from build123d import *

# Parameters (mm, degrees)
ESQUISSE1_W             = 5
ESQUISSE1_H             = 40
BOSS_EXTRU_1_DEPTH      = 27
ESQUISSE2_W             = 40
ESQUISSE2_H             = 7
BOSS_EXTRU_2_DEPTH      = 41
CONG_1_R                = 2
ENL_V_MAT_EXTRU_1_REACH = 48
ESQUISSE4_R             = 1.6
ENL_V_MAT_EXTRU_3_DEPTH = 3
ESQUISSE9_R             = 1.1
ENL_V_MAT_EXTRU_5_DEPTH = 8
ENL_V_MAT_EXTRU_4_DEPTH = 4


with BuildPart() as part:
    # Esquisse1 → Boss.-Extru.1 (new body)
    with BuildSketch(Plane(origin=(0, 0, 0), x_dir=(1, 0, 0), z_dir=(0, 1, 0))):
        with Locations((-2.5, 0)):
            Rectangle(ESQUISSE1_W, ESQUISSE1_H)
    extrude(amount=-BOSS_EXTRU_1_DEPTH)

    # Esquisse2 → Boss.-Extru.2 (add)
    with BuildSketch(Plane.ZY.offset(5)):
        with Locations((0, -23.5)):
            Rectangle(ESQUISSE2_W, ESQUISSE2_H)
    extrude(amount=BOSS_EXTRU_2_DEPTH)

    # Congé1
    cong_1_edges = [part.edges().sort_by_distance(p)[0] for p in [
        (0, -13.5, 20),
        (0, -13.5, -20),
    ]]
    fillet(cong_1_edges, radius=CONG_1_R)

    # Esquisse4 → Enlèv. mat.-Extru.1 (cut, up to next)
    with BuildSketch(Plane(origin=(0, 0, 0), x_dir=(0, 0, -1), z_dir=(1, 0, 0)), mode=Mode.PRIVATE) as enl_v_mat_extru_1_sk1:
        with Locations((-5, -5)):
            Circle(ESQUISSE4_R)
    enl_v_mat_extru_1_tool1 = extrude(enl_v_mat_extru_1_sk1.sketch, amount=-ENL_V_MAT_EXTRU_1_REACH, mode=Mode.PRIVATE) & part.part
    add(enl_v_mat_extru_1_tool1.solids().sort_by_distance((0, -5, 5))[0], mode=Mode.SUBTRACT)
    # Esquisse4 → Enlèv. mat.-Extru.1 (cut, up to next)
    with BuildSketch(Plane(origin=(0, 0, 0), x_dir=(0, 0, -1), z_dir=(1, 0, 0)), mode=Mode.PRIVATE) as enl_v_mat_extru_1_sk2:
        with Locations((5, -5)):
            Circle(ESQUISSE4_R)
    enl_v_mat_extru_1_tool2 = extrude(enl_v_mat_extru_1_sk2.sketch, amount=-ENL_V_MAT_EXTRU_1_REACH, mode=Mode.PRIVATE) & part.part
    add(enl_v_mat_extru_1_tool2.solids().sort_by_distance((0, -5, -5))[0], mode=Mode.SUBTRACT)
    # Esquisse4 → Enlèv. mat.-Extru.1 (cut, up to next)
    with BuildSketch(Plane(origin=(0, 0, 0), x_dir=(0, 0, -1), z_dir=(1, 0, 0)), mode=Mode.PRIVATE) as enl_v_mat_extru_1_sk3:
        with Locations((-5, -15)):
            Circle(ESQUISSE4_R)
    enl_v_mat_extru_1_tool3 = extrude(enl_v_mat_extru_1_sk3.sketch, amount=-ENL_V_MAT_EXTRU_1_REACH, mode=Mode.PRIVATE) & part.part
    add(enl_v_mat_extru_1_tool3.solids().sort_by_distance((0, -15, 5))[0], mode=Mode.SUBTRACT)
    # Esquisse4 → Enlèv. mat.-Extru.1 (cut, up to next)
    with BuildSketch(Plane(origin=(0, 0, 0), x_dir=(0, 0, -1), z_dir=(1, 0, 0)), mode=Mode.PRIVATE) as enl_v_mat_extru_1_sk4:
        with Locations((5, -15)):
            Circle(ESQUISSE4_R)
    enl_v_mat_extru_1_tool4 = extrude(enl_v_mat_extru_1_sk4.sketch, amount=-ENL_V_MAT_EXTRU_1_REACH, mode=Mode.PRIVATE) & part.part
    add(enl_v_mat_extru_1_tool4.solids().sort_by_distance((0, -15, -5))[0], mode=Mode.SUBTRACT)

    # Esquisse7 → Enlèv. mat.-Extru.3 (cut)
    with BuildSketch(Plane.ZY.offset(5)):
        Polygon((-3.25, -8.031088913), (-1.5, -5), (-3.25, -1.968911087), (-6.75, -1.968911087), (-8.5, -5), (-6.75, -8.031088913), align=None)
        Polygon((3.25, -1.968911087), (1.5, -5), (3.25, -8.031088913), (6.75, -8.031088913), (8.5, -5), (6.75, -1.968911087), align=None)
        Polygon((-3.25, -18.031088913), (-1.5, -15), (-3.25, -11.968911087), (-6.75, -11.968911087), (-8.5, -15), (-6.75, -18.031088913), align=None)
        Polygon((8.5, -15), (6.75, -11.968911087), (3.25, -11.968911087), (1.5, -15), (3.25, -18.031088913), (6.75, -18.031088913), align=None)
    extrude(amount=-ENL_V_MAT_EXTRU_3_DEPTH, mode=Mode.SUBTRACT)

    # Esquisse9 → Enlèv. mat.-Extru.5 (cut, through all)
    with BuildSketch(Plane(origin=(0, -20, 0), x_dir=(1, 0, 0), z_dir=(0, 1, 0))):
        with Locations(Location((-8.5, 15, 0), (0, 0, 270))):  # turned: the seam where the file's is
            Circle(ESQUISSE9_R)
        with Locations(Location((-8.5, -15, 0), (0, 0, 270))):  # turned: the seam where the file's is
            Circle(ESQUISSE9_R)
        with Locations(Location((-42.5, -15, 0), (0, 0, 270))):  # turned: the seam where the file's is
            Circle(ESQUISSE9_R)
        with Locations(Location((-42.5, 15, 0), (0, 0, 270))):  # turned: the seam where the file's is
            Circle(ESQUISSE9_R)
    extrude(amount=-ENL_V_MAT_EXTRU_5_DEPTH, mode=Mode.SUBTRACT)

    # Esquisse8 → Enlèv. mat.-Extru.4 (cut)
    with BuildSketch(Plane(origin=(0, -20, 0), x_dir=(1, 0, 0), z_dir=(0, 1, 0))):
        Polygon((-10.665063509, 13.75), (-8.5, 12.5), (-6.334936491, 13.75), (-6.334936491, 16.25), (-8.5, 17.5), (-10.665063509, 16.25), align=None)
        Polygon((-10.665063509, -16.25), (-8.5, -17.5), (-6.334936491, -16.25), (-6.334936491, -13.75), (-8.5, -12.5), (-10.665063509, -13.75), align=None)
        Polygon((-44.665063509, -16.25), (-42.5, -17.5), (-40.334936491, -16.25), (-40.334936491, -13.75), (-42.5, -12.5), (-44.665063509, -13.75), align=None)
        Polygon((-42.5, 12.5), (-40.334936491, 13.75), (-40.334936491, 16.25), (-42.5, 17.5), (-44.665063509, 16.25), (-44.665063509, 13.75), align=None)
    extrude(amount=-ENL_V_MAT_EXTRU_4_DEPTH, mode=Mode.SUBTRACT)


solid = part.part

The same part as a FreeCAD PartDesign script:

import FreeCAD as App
import Part
import Sketcher

V = App.Vector
Q = App.Units.Quantity


def edges_at(feature, points):
    """Names of the edges that pass closest to the given points."""
    edges = feature.Shape.Edges
    near = lambda p: min(range(len(edges)), key=lambda i: edges[i].distToShape(Part.Vertex(*p))[0])
    return sorted({f"Edge{near(p) + 1}" for p in points})

doc = App.newDocument("Part")
body = doc.addObject("PartDesign::Body", "Body")

# Sketch on XZ plane
sketch1 = body.newObject("Sketcher::SketchObject", "Sketch")
sketch1.AttachmentSupport = (doc.getObject("XZ_Plane"), [""])
sketch1.MapMode = "FlatFace"
sketch1.addGeometry(Part.LineSegment(V(-5, -20, 0), V(-5, 20, 0)), False)
sketch1.addGeometry(Part.LineSegment(V(-5, 20, 0), V(0, 20, 0)), False)
sketch1.addGeometry(Part.LineSegment(V(0, 20, 0), V(0, -20, 0)), False)
sketch1.addGeometry(Part.LineSegment(V(0, -20, 0), V(-5, -20, 0)), False)
sketch1.addConstraint(Sketcher.Constraint("Coincident", 0, 2, 1, 1))
sketch1.addConstraint(Sketcher.Constraint("Coincident", 1, 2, 2, 1))
sketch1.addConstraint(Sketcher.Constraint("Coincident", 2, 2, 3, 1))
sketch1.addConstraint(Sketcher.Constraint("Coincident", 3, 2, 0, 1))
sketch1.addConstraint(Sketcher.Constraint("Vertical", 0))
sketch1.addConstraint(Sketcher.Constraint("Horizontal", 1))
sketch1.addConstraint(Sketcher.Constraint("Vertical", 2))
sketch1.addConstraint(Sketcher.Constraint("Horizontal", 3))
sketch1.addConstraint(Sketcher.Constraint("Symmetric", 1, 2, 2, 2, -1, 1))
sketch1.addConstraint(Sketcher.Constraint("DistanceX", 1, 1, 1, 2, Q("5 mm")))
sketch1.addConstraint(Sketcher.Constraint("DistanceY", 0, 1, 0, 2, Q("40 mm")))
pad1 = body.newObject("PartDesign::Pad", "Pad")
pad1.Profile = sketch1
pad1.Length = 27

# Sketch on YZ plane
sketch2 = body.newObject("Sketcher::SketchObject", "Sketch001")
sketch2.AttachmentSupport = (doc.getObject("YZ_Plane"), [""])
sketch2.MapMode = "FlatFace"
sketch2.AttachmentOffset = App.Placement(V(0, 0, -5), App.Rotation())
sketch2.addGeometry(Part.LineSegment(V(-20, -20, 0), V(-27, -20, 0)), False)
sketch2.addGeometry(Part.LineSegment(V(-27, -20, 0), V(-27, 20, 0)), False)
sketch2.addGeometry(Part.LineSegment(V(-27, 20, 0), V(-20, 20, 0)), False)
sketch2.addGeometry(Part.LineSegment(V(-20, 20, 0), V(-20, -20, 0)), False)
sketch2.addConstraint(Sketcher.Constraint("Coincident", 0, 2, 1, 1))
sketch2.addConstraint(Sketcher.Constraint("Coincident", 1, 2, 2, 1))
sketch2.addConstraint(Sketcher.Constraint("Coincident", 2, 2, 3, 1))
sketch2.addConstraint(Sketcher.Constraint("Coincident", 3, 2, 0, 1))
sketch2.addConstraint(Sketcher.Constraint("Horizontal", 0))
sketch2.addConstraint(Sketcher.Constraint("Vertical", 1))
sketch2.addConstraint(Sketcher.Constraint("Horizontal", 2))
sketch2.addConstraint(Sketcher.Constraint("Vertical", 3))
sketch2.addConstraint(Sketcher.Constraint("DistanceX", 0, 2, 0, 1, Q("7 mm")))
sketch2.addConstraint(Sketcher.Constraint("DistanceY", 1, 1, 1, 2, Q("40 mm")))
sketch2.addConstraint(Sketcher.Constraint("DistanceX", 0, 2, -1, 1, Q("27 mm")))
sketch2.addConstraint(Sketcher.Constraint("DistanceY", 0, 2, -1, 1, Q("20 mm")))
pad2 = body.newObject("PartDesign::Pad", "Pad001")
pad2.Profile = sketch2
pad2.Length = 41
pad2.Reversed = True
doc.recompute()

fillet = body.newObject("PartDesign::Fillet", "Fillet")
fillet.Base = (pad2, edges_at(pad2, [(0, -13.5, 20), (0, -13.5, -20)]))
fillet.Radius = 2

# Sketch on YZ plane
sketch3 = body.newObject("Sketcher::SketchObject", "Sketch002")
sketch3.AttachmentSupport = (doc.getObject("YZ_Plane"), [""])
sketch3.MapMode = "FlatFace"
sketch3.addGeometry(Part.Circle(V(-5, 5, 0), V(0, 0, 1), 1.6), False)
sketch3.addConstraint(Sketcher.Constraint("Diameter", 0, Q("3.2 mm")))
sketch3.addConstraint(Sketcher.Constraint("DistanceX", 0, 3, -1, 1, Q("5 mm")))
sketch3.addConstraint(Sketcher.Constraint("DistanceY", -1, 1, 0, 3, Q("5 mm")))
pocket1 = body.newObject("PartDesign::Pocket", "Pocket")
pocket1.Profile = sketch3
pocket1.Type = "UpToFirst"

# Sketch on YZ plane
sketch4 = body.newObject("Sketcher::SketchObject", "Sketch003")
sketch4.AttachmentSupport = (doc.getObject("YZ_Plane"), [""])
sketch4.MapMode = "FlatFace"
sketch4.addGeometry(Part.Circle(V(-5, -5, 0), V(0, 0, 1), 1.6), False)
sketch4.addConstraint(Sketcher.Constraint("Diameter", 0, Q("3.2 mm")))
sketch4.addConstraint(Sketcher.Constraint("DistanceX", 0, 3, -1, 1, Q("5 mm")))
sketch4.addConstraint(Sketcher.Constraint("DistanceY", 0, 3, -1, 1, Q("5 mm")))
pocket2 = body.newObject("PartDesign::Pocket", "Pocket001")
pocket2.Profile = sketch4
pocket2.Type = "UpToFirst"

# Sketch on YZ plane
sketch5 = body.newObject("Sketcher::SketchObject", "Sketch004")
sketch5.AttachmentSupport = (doc.getObject("YZ_Plane"), [""])
sketch5.MapMode = "FlatFace"
sketch5.addGeometry(Part.Circle(V(-15, 5, 0), V(0, 0, 1), 1.6), False)
sketch5.addConstraint(Sketcher.Constraint("Diameter", 0, Q("3.2 mm")))
sketch5.addConstraint(Sketcher.Constraint("DistanceX", 0, 3, -1, 1, Q("15 mm")))
sketch5.addConstraint(Sketcher.Constraint("DistanceY", -1, 1, 0, 3, Q("5 mm")))
pocket3 = body.newObject("PartDesign::Pocket", "Pocket002")
pocket3.Profile = sketch5
pocket3.Type = "UpToFirst"

# Sketch on YZ plane
sketch6 = body.newObject("Sketcher::SketchObject", "Sketch005")
sketch6.AttachmentSupport = (doc.getObject("YZ_Plane"), [""])
sketch6.MapMode = "FlatFace"
sketch6.addGeometry(Part.Circle(V(-15, -5, 0), V(0, 0, 1), 1.6), False)
sketch6.addConstraint(Sketcher.Constraint("Diameter", 0, Q("3.2 mm")))
sketch6.addConstraint(Sketcher.Constraint("DistanceX", 0, 3, -1, 1, Q("15 mm")))
sketch6.addConstraint(Sketcher.Constraint("DistanceY", 0, 3, -1, 1, Q("5 mm")))
pocket4 = body.newObject("PartDesign::Pocket", "Pocket003")
pocket4.Profile = sketch6
pocket4.Type = "UpToFirst"

# Sketch on YZ plane
sketch7 = body.newObject("Sketcher::SketchObject", "Sketch006")
sketch7.AttachmentSupport = (doc.getObject("YZ_Plane"), [""])
sketch7.MapMode = "FlatFace"
sketch7.AttachmentOffset = App.Placement(V(0, 0, -5), App.Rotation())
sketch7.addGeometry(Part.LineSegment(V(-8, -3.2, 0), V(-5, -1.5, 0)), False)
sketch7.addGeometry(Part.LineSegment(V(-5, -1.5, 0), V(-2, -3.2, 0)), False)
sketch7.addGeometry(Part.LineSegment(V(-2, -3.2, 0), V(-2, -6.8, 0)), False)
sketch7.addGeometry(Part.LineSegment(V(-2, -6.8, 0), V(-5, -8.5, 0)), False)
sketch7.addGeometry(Part.LineSegment(V(-5, -8.5, 0), V(-8, -6.8, 0)), False)
sketch7.addGeometry(Part.LineSegment(V(-8, -6.8, 0), V(-8, -3.2, 0)), False)
sketch7.addGeometry(Part.LineSegment(V(-2, 3.2, 0), V(-5, 1.5, 0)), False)
sketch7.addGeometry(Part.LineSegment(V(-5, 1.5, 0), V(-8, 3.2, 0)), False)
sketch7.addGeometry(Part.LineSegment(V(-8, 3.2, 0), V(-8, 6.8, 0)), False)
sketch7.addGeometry(Part.LineSegment(V(-8, 6.8, 0), V(-5, 8.5, 0)), False)
sketch7.addGeometry(Part.LineSegment(V(-5, 8.5, 0), V(-2, 6.8, 0)), False)
sketch7.addGeometry(Part.LineSegment(V(-2, 6.8, 0), V(-2, 3.2, 0)), False)
sketch7.addGeometry(Part.LineSegment(V(-18, -3.2, 0), V(-15, -1.5, 0)), False)
sketch7.addGeometry(Part.LineSegment(V(-15, -1.5, 0), V(-12, -3.2, 0)), False)
sketch7.addGeometry(Part.LineSegment(V(-12, -3.2, 0), V(-12, -6.8, 0)), False)
sketch7.addGeometry(Part.LineSegment(V(-12, -6.8, 0), V(-15, -8.5, 0)), False)
sketch7.addGeometry(Part.LineSegment(V(-15, -8.5, 0), V(-18, -6.8, 0)), False)
sketch7.addGeometry(Part.LineSegment(V(-18, -6.8, 0), V(-18, -3.2, 0)), False)
sketch7.addGeometry(Part.LineSegment(V(-15, 8.5, 0), V(-12, 6.8, 0)), False)
sketch7.addGeometry(Part.LineSegment(V(-12, 6.8, 0), V(-12, 3.2, 0)), False)
sketch7.addGeometry(Part.LineSegment(V(-12, 3.2, 0), V(-15, 1.5, 0)), False)
sketch7.addGeometry(Part.LineSegment(V(-15, 1.5, 0), V(-18, 3.2, 0)), False)
sketch7.addGeometry(Part.LineSegment(V(-18, 3.2, 0), V(-18, 6.8, 0)), False)
sketch7.addGeometry(Part.LineSegment(V(-18, 6.8, 0), V(-15, 8.5, 0)), False)
sketch7.addConstraint(Sketcher.Constraint("Coincident", 0, 2, 1, 1))
sketch7.addConstraint(Sketcher.Constraint("Coincident", 1, 2, 2, 1))
sketch7.addConstraint(Sketcher.Constraint("Coincident", 2, 2, 3, 1))
sketch7.addConstraint(Sketcher.Constraint("Coincident", 3, 2, 4, 1))
sketch7.addConstraint(Sketcher.Constraint("Coincident", 4, 2, 5, 1))
sketch7.addConstraint(Sketcher.Constraint("Coincident", 5, 2, 0, 1))
sketch7.addConstraint(Sketcher.Constraint("Coincident", 6, 2, 7, 1))
sketch7.addConstraint(Sketcher.Constraint("Coincident", 7, 2, 8, 1))
sketch7.addConstraint(Sketcher.Constraint("Coincident", 8, 2, 9, 1))
sketch7.addConstraint(Sketcher.Constraint("Coincident", 9, 2, 10, 1))
sketch7.addConstraint(Sketcher.Constraint("Coincident", 10, 2, 11, 1))
sketch7.addConstraint(Sketcher.Constraint("Coincident", 11, 2, 6, 1))
sketch7.addConstraint(Sketcher.Constraint("Coincident", 12, 2, 13, 1))
sketch7.addConstraint(Sketcher.Constraint("Coincident", 13, 2, 14, 1))
sketch7.addConstraint(Sketcher.Constraint("Coincident", 14, 2, 15, 1))
sketch7.addConstraint(Sketcher.Constraint("Coincident", 15, 2, 16, 1))
sketch7.addConstraint(Sketcher.Constraint("Coincident", 16, 2, 17, 1))
sketch7.addConstraint(Sketcher.Constraint("Coincident", 17, 2, 12, 1))
sketch7.addConstraint(Sketcher.Constraint("Coincident", 18, 2, 19, 1))
sketch7.addConstraint(Sketcher.Constraint("Coincident", 19, 2, 20, 1))
sketch7.addConstraint(Sketcher.Constraint("Coincident", 20, 2, 21, 1))
sketch7.addConstraint(Sketcher.Constraint("Coincident", 21, 2, 22, 1))
sketch7.addConstraint(Sketcher.Constraint("Coincident", 22, 2, 23, 1))
sketch7.addConstraint(Sketcher.Constraint("Coincident", 23, 2, 18, 1))
sketch7.addConstraint(Sketcher.Constraint("Vertical", 2))
sketch7.addConstraint(Sketcher.Constraint("Vertical", 5))
sketch7.addConstraint(Sketcher.Constraint("Vertical", 8))
sketch7.addConstraint(Sketcher.Constraint("Vertical", 11))
sketch7.addConstraint(Sketcher.Constraint("Vertical", 14))
sketch7.addConstraint(Sketcher.Constraint("Vertical", 17))
sketch7.addConstraint(Sketcher.Constraint("Vertical", 19))
sketch7.addConstraint(Sketcher.Constraint("Vertical", 22))
sketch7.addConstraint(Sketcher.Constraint("Symmetric", 0, 2, 6, 2, -1))
sketch7.addConstraint(Sketcher.Constraint("Symmetric", 5, 2, 7, 2, -1))
sketch7.addConstraint(Sketcher.Constraint("Symmetric", 3, 2, 9, 2, -1))
sketch7.addConstraint(Sketcher.Constraint("Symmetric", 2, 2, 10, 2, -1))
sketch7.addConstraint(Sketcher.Constraint("Symmetric", 14, 2, 18, 2, -1))
sketch7.addConstraint(Sketcher.Constraint("Symmetric", 12, 2, 20, 2, -1))
sketch7.addConstraint(Sketcher.Constraint("Symmetric", 17, 2, 21, 2, -1))
sketch7.addConstraint(Sketcher.Constraint("Symmetric", 15, 2, 23, 2, -1))
sketch7.addConstraint(Sketcher.Constraint("Parallel", 0, 3))
sketch7.addConstraint(Sketcher.Constraint("Parallel", 1, 4))
sketch7.addConstraint(Sketcher.Constraint("Parallel", 3, 6))
sketch7.addConstraint(Sketcher.Constraint("Parallel", 4, 7))
sketch7.addConstraint(Sketcher.Constraint("Parallel", 6, 9))
sketch7.addConstraint(Sketcher.Constraint("Parallel", 9, 12))
sketch7.addConstraint(Sketcher.Constraint("Parallel", 10, 13))
sketch7.addConstraint(Sketcher.Constraint("Parallel", 12, 15))
sketch7.addConstraint(Sketcher.Constraint("Parallel", 13, 16))
sketch7.addConstraint(Sketcher.Constraint("Parallel", 15, 20))
sketch7.addConstraint(Sketcher.Constraint("Parallel", 20, 23))
sketch7.addConstraint(Sketcher.Constraint("Horizontal", 2, 2, 4, 2))
sketch7.addConstraint(Sketcher.Constraint("Horizontal", 1, 2, 5, 2))
sketch7.addConstraint(Sketcher.Constraint("Horizontal", 0, 2, 12, 2))
sketch7.addConstraint(Sketcher.Constraint("Horizontal", 5, 2, 13, 2))
sketch7.addConstraint(Sketcher.Constraint("Horizontal", 4, 2, 14, 2))
sketch7.addConstraint(Sketcher.Constraint("Horizontal", 3, 2, 15, 2))
sketch7.addConstraint(Sketcher.Constraint("Horizontal", 14, 2, 16, 2))
sketch7.addConstraint(Sketcher.Constraint("Angle", 0, Q("30 deg")))
sketch7.addConstraint(Sketcher.Constraint("DistanceY", 2, 2, 2, 1, Q("3.5 mm")))
sketch7.addConstraint(Sketcher.Constraint("DistanceX", 0, 2, -1, 1, Q("5 mm")))
sketch7.addConstraint(Sketcher.Constraint("DistanceX", 12, 2, -1, 1, Q("15 mm")))
sketch7.addConstraint(Sketcher.Constraint("DistanceY", 3, 2, 0, 2, Q("7 mm")))
sketch7.addConstraint(Sketcher.Constraint("DistanceY", 0, 2, 6, 2, Q("3 mm")))
pocket5 = body.newObject("PartDesign::Pocket", "Pocket004")
pocket5.Profile = sketch7
pocket5.Length = 3
pocket5.Reversed = True

# Sketch on XZ plane
sketch8 = body.newObject("Sketcher::SketchObject", "Sketch007")
sketch8.AttachmentSupport = (doc.getObject("XZ_Plane"), [""])
sketch8.MapMode = "FlatFace"
sketch8.AttachmentOffset = App.Placement(V(0, 0, 20), App.Rotation())
sketch8.addGeometry(Part.Circle(V(-8.5, -15, 0), V(0, 0, 1), 1.1), False)
sketch8.addGeometry(Part.Circle(V(-8.5, 15, 0), V(0, 0, 1), 1.1), False)
sketch8.addGeometry(Part.Circle(V(-42.5, 15, 0), V(0, 0, 1), 1.1), False)
sketch8.addGeometry(Part.Circle(V(-42.5, -15, 0), V(0, 0, 1), 1.1), False)
sketch8.addConstraint(Sketcher.Constraint("Equal", 0, 1))
sketch8.addConstraint(Sketcher.Constraint("Equal", 1, 2))
sketch8.addConstraint(Sketcher.Constraint("Equal", 2, 3))
sketch8.addConstraint(Sketcher.Constraint("Symmetric", 0, 3, 1, 3, -1))
sketch8.addConstraint(Sketcher.Constraint("Symmetric", 2, 3, 3, 3, -1))
sketch8.addConstraint(Sketcher.Constraint("Horizontal", 1, 3, 2, 3))
sketch8.addConstraint(Sketcher.Constraint("Diameter", 0, Q("2.2 mm")))
sketch8.addConstraint(Sketcher.Constraint("DistanceY", 0, 3, -1, 1, Q("15 mm")))
sketch8.addConstraint(Sketcher.Constraint("DistanceX", 2, 3, 1, 3, Q("34 mm")))
sketch8.addConstraint(Sketcher.Constraint("DistanceX", 0, 3, -1, 1, Q("8.5 mm")))
pocket6 = body.newObject("PartDesign::Pocket", "Pocket005")
pocket6.Profile = sketch8
pocket6.Type = "ThroughAll"
pocket6.Reversed = True

# Sketch on XZ plane
sketch9 = body.newObject("Sketcher::SketchObject", "Sketch008")
sketch9.AttachmentSupport = (doc.getObject("XZ_Plane"), [""])
sketch9.MapMode = "FlatFace"
sketch9.AttachmentOffset = App.Placement(V(0, 0, 20), App.Rotation())
sketch9.addGeometry(Part.LineSegment(V(-10.7, -13.8, 0), V(-8.5, -12.5, 0)), False)
sketch9.addGeometry(Part.LineSegment(V(-8.5, -12.5, 0), V(-6.3, -13.8, 0)), False)
sketch9.addGeometry(Part.LineSegment(V(-6.3, -13.8, 0), V(-6.3, -16.2, 0)), False)
sketch9.addGeometry(Part.LineSegment(V(-6.3, -16.2, 0), V(-8.5, -17.5, 0)), False)
sketch9.addGeometry(Part.LineSegment(V(-8.5, -17.5, 0), V(-10.7, -16.2, 0)), False)
sketch9.addGeometry(Part.LineSegment(V(-10.7, -16.2, 0), V(-10.7, -13.8, 0)), False)
sketch9.addGeometry(Part.LineSegment(V(-10.7, 16.2, 0), V(-8.5, 17.5, 0)), False)
sketch9.addGeometry(Part.LineSegment(V(-8.5, 17.5, 0), V(-6.3, 16.2, 0)), False)
sketch9.addGeometry(Part.LineSegment(V(-6.3, 16.2, 0), V(-6.3, 13.8, 0)), False)
sketch9.addGeometry(Part.LineSegment(V(-6.3, 13.8, 0), V(-8.5, 12.5, 0)), False)
sketch9.addGeometry(Part.LineSegment(V(-8.5, 12.5, 0), V(-10.7, 13.8, 0)), False)
sketch9.addGeometry(Part.LineSegment(V(-10.7, 13.8, 0), V(-10.7, 16.2, 0)), False)
sketch9.addGeometry(Part.LineSegment(V(-44.7, 16.2, 0), V(-42.5, 17.5, 0)), False)
sketch9.addGeometry(Part.LineSegment(V(-42.5, 17.5, 0), V(-40.3, 16.2, 0)), False)
sketch9.addGeometry(Part.LineSegment(V(-40.3, 16.2, 0), V(-40.3, 13.8, 0)), False)
sketch9.addGeometry(Part.LineSegment(V(-40.3, 13.8, 0), V(-42.5, 12.5, 0)), False)
sketch9.addGeometry(Part.LineSegment(V(-42.5, 12.5, 0), V(-44.7, 13.8, 0)), False)
sketch9.addGeometry(Part.LineSegment(V(-44.7, 13.8, 0), V(-44.7, 16.2, 0)), False)
sketch9.addGeometry(Part.LineSegment(V(-42.5, -12.5, 0), V(-40.3, -13.8, 0)), False)
sketch9.addGeometry(Part.LineSegment(V(-40.3, -13.8, 0), V(-40.3, -16.2, 0)), False)
sketch9.addGeometry(Part.LineSegment(V(-40.3, -16.2, 0), V(-42.5, -17.5, 0)), False)
sketch9.addGeometry(Part.LineSegment(V(-42.5, -17.5, 0), V(-44.7, -16.2, 0)), False)
sketch9.addGeometry(Part.LineSegment(V(-44.7, -16.2, 0), V(-44.7, -13.8, 0)), False)
sketch9.addGeometry(Part.LineSegment(V(-44.7, -13.8, 0), V(-42.5, -12.5, 0)), False)
sketch9.addConstraint(Sketcher.Constraint("Coincident", 0, 2, 1, 1))
sketch9.addConstraint(Sketcher.Constraint("Coincident", 1, 2, 2, 1))
sketch9.addConstraint(Sketcher.Constraint("Coincident", 2, 2, 3, 1))
sketch9.addConstraint(Sketcher.Constraint("Coincident", 3, 2, 4, 1))
sketch9.addConstraint(Sketcher.Constraint("Coincident", 4, 2, 5, 1))
sketch9.addConstraint(Sketcher.Constraint("Coincident", 5, 2, 0, 1))
sketch9.addConstraint(Sketcher.Constraint("Coincident", 6, 2, 7, 1))
sketch9.addConstraint(Sketcher.Constraint("Coincident", 7, 2, 8, 1))
sketch9.addConstraint(Sketcher.Constraint("Coincident", 8, 2, 9, 1))
sketch9.addConstraint(Sketcher.Constraint("Coincident", 9, 2, 10, 1))
sketch9.addConstraint(Sketcher.Constraint("Coincident", 10, 2, 11, 1))
sketch9.addConstraint(Sketcher.Constraint("Coincident", 11, 2, 6, 1))
sketch9.addConstraint(Sketcher.Constraint("Coincident", 12, 2, 13, 1))
sketch9.addConstraint(Sketcher.Constraint("Coincident", 13, 2, 14, 1))
sketch9.addConstraint(Sketcher.Constraint("Coincident", 14, 2, 15, 1))
sketch9.addConstraint(Sketcher.Constraint("Coincident", 15, 2, 16, 1))
sketch9.addConstraint(Sketcher.Constraint("Coincident", 16, 2, 17, 1))
sketch9.addConstraint(Sketcher.Constraint("Coincident", 17, 2, 12, 1))
sketch9.addConstraint(Sketcher.Constraint("Coincident", 18, 2, 19, 1))
sketch9.addConstraint(Sketcher.Constraint("Coincident", 19, 2, 20, 1))
sketch9.addConstraint(Sketcher.Constraint("Coincident", 20, 2, 21, 1))
sketch9.addConstraint(Sketcher.Constraint("Coincident", 21, 2, 22, 1))
sketch9.addConstraint(Sketcher.Constraint("Coincident", 22, 2, 23, 1))
sketch9.addConstraint(Sketcher.Constraint("Coincident", 23, 2, 18, 1))
sketch9.addConstraint(Sketcher.Constraint("Vertical", 2))
sketch9.addConstraint(Sketcher.Constraint("Vertical", 5))
sketch9.addConstraint(Sketcher.Constraint("Vertical", 8))
sketch9.addConstraint(Sketcher.Constraint("Vertical", 11))
sketch9.addConstraint(Sketcher.Constraint("Vertical", 14))
sketch9.addConstraint(Sketcher.Constraint("Vertical", 17))
sketch9.addConstraint(Sketcher.Constraint("Vertical", 19))
sketch9.addConstraint(Sketcher.Constraint("Vertical", 22))
sketch9.addConstraint(Sketcher.Constraint("Symmetric", 3, 2, 6, 2, -1))
sketch9.addConstraint(Sketcher.Constraint("Symmetric", 2, 2, 7, 2, -1))
sketch9.addConstraint(Sketcher.Constraint("Symmetric", 0, 2, 9, 2, -1))
sketch9.addConstraint(Sketcher.Constraint("Symmetric", 5, 2, 10, 2, -1))
sketch9.addConstraint(Sketcher.Constraint("Symmetric", 14, 2, 18, 2, -1))
sketch9.addConstraint(Sketcher.Constraint("Symmetric", 12, 2, 20, 2, -1))
sketch9.addConstraint(Sketcher.Constraint("Symmetric", 17, 2, 21, 2, -1))
sketch9.addConstraint(Sketcher.Constraint("Symmetric", 15, 2, 23, 2, -1))
sketch9.addConstraint(Sketcher.Constraint("Parallel", 0, 3))
sketch9.addConstraint(Sketcher.Constraint("Parallel", 1, 4))
sketch9.addConstraint(Sketcher.Constraint("Parallel", 3, 6))
sketch9.addConstraint(Sketcher.Constraint("Parallel", 4, 7))
sketch9.addConstraint(Sketcher.Constraint("Parallel", 6, 9))
sketch9.addConstraint(Sketcher.Constraint("Parallel", 9, 12))
sketch9.addConstraint(Sketcher.Constraint("Parallel", 10, 13))
sketch9.addConstraint(Sketcher.Constraint("Parallel", 12, 15))
sketch9.addConstraint(Sketcher.Constraint("Parallel", 13, 16))
sketch9.addConstraint(Sketcher.Constraint("Parallel", 15, 20))
sketch9.addConstraint(Sketcher.Constraint("Parallel", 20, 23))
sketch9.addConstraint(Sketcher.Constraint("Horizontal", 2, 2, 4, 2))
sketch9.addConstraint(Sketcher.Constraint("Horizontal", 1, 2, 5, 2))
sketch9.addConstraint(Sketcher.Constraint("Horizontal", 6, 2, 12, 2))
sketch9.addConstraint(Sketcher.Constraint("Horizontal", 11, 2, 13, 2))
sketch9.addConstraint(Sketcher.Constraint("Horizontal", 10, 2, 14, 2))
sketch9.addConstraint(Sketcher.Constraint("Horizontal", 9, 2, 15, 2))
sketch9.addConstraint(Sketcher.Constraint("Horizontal", 14, 2, 16, 2))
sketch9.addConstraint(Sketcher.Constraint("Angle", 0, Q("30 deg")))
sketch9.addConstraint(Sketcher.Constraint("DistanceY", 2, 2, 2, 1, Q("2.5 mm")))
sketch9.addConstraint(Sketcher.Constraint("DistanceY", 3, 2, 0, 2, Q("5 mm")))
sketch9.addConstraint(Sketcher.Constraint("DistanceY", 0, 2, 6, 2, Q("30 mm")))
sketch9.addConstraint(Sketcher.Constraint("DistanceX", 12, 2, 6, 2, Q("34 mm")))
sketch9.addConstraint(Sketcher.Constraint("DistanceX", 0, 2, -1, 1, Q("8.5 mm")))
pocket7 = body.newObject("PartDesign::Pocket", "Pocket006")
pocket7.Profile = sketch9
pocket7.Length = 4
pocket7.Reversed = True

doc.recompute()
